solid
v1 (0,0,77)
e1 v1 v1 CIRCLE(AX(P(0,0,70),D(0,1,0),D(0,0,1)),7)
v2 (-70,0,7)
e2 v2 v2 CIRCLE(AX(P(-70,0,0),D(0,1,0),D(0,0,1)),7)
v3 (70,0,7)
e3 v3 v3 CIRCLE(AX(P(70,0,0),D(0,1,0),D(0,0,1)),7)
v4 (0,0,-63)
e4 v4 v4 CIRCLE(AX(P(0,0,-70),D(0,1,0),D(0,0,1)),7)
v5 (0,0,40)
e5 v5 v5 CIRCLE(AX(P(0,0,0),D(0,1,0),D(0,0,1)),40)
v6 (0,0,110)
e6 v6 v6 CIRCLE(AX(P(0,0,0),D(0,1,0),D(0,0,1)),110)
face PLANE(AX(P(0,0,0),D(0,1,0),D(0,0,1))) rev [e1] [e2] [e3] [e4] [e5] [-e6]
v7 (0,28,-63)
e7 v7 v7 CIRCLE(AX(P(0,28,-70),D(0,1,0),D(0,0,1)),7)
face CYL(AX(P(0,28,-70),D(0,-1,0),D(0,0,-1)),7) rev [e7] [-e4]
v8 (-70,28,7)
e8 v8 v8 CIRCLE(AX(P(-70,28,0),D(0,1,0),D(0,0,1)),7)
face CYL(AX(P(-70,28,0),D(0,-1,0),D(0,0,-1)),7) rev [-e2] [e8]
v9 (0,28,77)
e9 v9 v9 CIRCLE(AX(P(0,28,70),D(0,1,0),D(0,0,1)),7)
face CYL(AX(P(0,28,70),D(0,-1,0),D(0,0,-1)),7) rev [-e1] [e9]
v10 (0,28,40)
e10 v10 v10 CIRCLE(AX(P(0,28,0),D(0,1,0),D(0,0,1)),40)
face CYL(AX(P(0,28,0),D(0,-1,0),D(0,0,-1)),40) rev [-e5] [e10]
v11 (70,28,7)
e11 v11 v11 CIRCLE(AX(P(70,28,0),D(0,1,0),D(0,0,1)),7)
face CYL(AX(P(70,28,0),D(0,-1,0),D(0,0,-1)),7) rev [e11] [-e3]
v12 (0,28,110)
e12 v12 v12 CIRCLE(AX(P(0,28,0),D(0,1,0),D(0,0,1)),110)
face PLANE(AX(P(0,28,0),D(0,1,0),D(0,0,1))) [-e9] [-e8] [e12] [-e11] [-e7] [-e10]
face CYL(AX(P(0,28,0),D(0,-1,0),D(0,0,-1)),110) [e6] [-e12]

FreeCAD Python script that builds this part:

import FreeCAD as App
import Part
import Sketcher
from FreeCAD import Vector

doc = App.newDocument("Part")
body = doc.addObject("PartDesign::Body", "Body")

# Sketch on XZ plane
sketch1 = body.newObject("Sketcher::SketchObject", "Sketch")
sketch1.AttachmentSupport = (doc.getObject("XZ_Plane"), [""])
sketch1.MapMode = "FlatFace"
sketch1.addGeometry([
    Part.Circle(Vector(0, 0, 0), Vector(0, 0, 1), 110),  # 0
    Part.Circle(Vector(0, -70, 0), Vector(0, 0, 1), 7),  # 1
    Part.Circle(Vector(-70, 0, 0), Vector(0, 0, 1), 7),  # 2
    Part.Circle(Vector(70, 0, 0), Vector(0, 0, 1), 7),  # 3
    Part.Circle(Vector(0, 0, 0), Vector(0, 0, 1), 40),  # 4
    Part.Circle(Vector(0, 70, 0), Vector(0, 0, 1), 7),  # 5
], False)
sketch1.addConstraint([
    Sketcher.Constraint("Coincident", 0, 3, -1, 1),
    Sketcher.Constraint("Coincident", 4, 3, -1, 1),
    Sketcher.Constraint("Equal", 1, 2),
    Sketcher.Constraint("Equal", 2, 3),
    Sketcher.Constraint("Equal", 3, 5),
    Sketcher.Constraint("Symmetric", 2, 3, 3, 3, -1, 1),
    Sketcher.Constraint("Symmetric", 1, 3, 5, 3, -1, 1),
    Sketcher.Constraint("PointOnObject", 1, 3, -2),
    Sketcher.Constraint("PointOnObject", 2, 3, -1),
    Sketcher.Constraint("Diameter", 0, 220.0),
    Sketcher.Constraint("Diameter", 1, 14.0),
    Sketcher.Constraint("Diameter", 4, 80.0),
    Sketcher.Constraint("DistanceY", 1, 3, -1, 1, 70.0),
    Sketcher.Constraint("DistanceX", 2, 3, -1, 1, 70.0),
])
pad1 = body.newObject("PartDesign::Pad", "Pad")
pad1.Profile = sketch1
pad1.Length = 28
pad1.Reversed = True

doc.recompute()
